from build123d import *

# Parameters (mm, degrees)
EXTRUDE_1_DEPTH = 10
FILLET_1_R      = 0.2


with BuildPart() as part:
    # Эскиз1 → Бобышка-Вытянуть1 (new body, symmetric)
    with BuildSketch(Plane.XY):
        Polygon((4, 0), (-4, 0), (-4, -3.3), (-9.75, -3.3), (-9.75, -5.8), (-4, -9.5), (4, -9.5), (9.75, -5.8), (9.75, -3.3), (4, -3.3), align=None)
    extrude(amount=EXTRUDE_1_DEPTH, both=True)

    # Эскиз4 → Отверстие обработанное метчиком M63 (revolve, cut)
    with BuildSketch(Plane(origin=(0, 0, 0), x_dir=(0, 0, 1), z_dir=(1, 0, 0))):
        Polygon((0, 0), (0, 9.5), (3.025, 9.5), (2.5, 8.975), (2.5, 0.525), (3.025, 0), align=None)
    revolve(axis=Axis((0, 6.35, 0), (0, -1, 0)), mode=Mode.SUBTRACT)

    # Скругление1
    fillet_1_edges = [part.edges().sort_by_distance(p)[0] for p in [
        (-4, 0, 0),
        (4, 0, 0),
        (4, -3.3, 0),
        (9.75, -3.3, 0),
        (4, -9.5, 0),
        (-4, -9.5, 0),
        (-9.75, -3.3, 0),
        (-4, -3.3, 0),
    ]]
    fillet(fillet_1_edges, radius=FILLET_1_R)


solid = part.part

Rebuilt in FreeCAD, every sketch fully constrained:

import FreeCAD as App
import Part
import Sketcher


def edges_at(feature, points):
    """Names of the edges that pass closest to the given points."""
    edges = feature.Shape.Edges
    near = lambda p: min(range(len(edges)), key=lambda i: edges[i].distToShape(Part.Vertex(*p))[0])
    return sorted({f"Edge{near(p) + 1}" for p in points})


def add_polygon(sketch, points):
    """Adds a closed chain of lines whose ends are joined by coincident constraints."""
    first, n = sketch.GeometryCount, len(points)
    for a, b in zip(points, points[1:] + points[:1]):
        sketch.addGeometry(Part.LineSegment(App.Vector(*a, 0), App.Vector(*b, 0)), False)
    for i in range(n):
        sketch.addConstraint(Sketcher.Constraint("Coincident", first + i, 2, first + (i + 1) % n, 1))

doc = App.newDocument("Part")
body = doc.addObject("PartDesign::Body", "Body")

sketch1 = body.newObject("Sketcher::SketchObject", "Sketch")
sketch1.AttachmentSupport = (doc.getObject("XY_Plane"), [""])
sketch1.MapMode = "FlatFace"
add_polygon(sketch1, [(4, 0), (-4, 0), (-4, -3.3), (-9.8, -3.3), (-9.8, -5.8), (-4, -9.5), (4, -9.5), (9.8, -5.8), (9.8, -3.3), (4, -3.3)])
sketch1.addConstraint([
    Sketcher.Constraint("Horizontal", 0),
    Sketcher.Constraint("Vertical", 1),
    Sketcher.Constraint("Horizontal", 2),
    Sketcher.Constraint("Vertical", 3),
    Sketcher.Constraint("Horizontal", 5),
    Sketcher.Constraint("Vertical", 7),
    Sketcher.Constraint("Horizontal", 8),
    Sketcher.Constraint("Vertical", 9),
    Sketcher.Constraint("Symmetric", 0, 2, 9, 2, -1, 1),
    Sketcher.Constraint("Symmetric", 3, 2, 6, 2, -2),
    Sketcher.Constraint("Horizontal", 2, 2, 7, 2),
    Sketcher.Constraint("Vertical", 1, 2, 4, 2),
    Sketcher.Constraint("Vertical", 5, 2, 8, 2),
    Sketcher.Constraint("DistanceX", 0, 2, 0, 1, 8.0),
    Sketcher.Constraint("DistanceY", 1, 2, 1, 1, 3.3),
    Sketcher.Constraint("DistanceY", 3, 2, 3, 1, 2.5),
    Sketcher.Constraint("DistanceX", 2, 2, 2, 1, 5.75),
    Sketcher.Constraint("DistanceY", 4, 2, -1, 1, 9.5),
])
pad1 = body.newObject("PartDesign::Pad", "Pad")
pad1.Profile = sketch1
pad1.Length = 20
pad1.Midplane = True

sketch2 = body.newObject("Sketcher::SketchObject", "Sketch001")
sketch2.AttachmentSupport = (doc.getObject("YZ_Plane"), [""])
sketch2.MapMode = "FlatFace"
add_polygon(sketch2, [(-9.5, 0), (0, 0), (0, 3), (-0.5, 2.5), (-9, 2.5), (-9.5, 3)])
sketch2.addConstraint([
    Sketcher.Constraint("Horizontal", 0),
    Sketcher.Constraint("Vertical", 1),
    Sketcher.Constraint("Horizontal", 3),
    Sketcher.Constraint("Vertical", 5),
    Sketcher.Constraint("Coincident", 0, 2, -1, 1),
    Sketcher.Constraint("Perpendicular", 2, 4),
    Sketcher.Constraint("Horizontal", 1, 2, 4, 2),
    Sketcher.Constraint("Equal", 2, 4),
    Sketcher.Constraint("DistanceX", 0, 1, 0, 2, 9.5),
    Sketcher.Constraint("DistanceX", 3, 2, 3, 1, 8.45),
    Sketcher.Constraint("DistanceY", -1, 1, 2, 2, 2.5),
])
groove = body.newObject("PartDesign::Groove", "Groove")
groove.Profile = sketch2
groove.ReferenceAxis = (sketch2, ["H_Axis"])
groove.Angle = 360
doc.recompute()

fillet = body.newObject("PartDesign::Fillet", "Fillet")
fillet.Base = (groove, edges_at(groove, [
    (-4, 0, 0),
    (4, 0, 0),
    (4, -3.3, 0),
    (9.75, -3.3, 0),
    (4, -9.5, 0),
    (-4, -9.5, 0),
    (-9.75, -3.3, 0),
    (-4, -3.3, 0),
]))
fillet.Radius = 0.2

doc.recompute()
